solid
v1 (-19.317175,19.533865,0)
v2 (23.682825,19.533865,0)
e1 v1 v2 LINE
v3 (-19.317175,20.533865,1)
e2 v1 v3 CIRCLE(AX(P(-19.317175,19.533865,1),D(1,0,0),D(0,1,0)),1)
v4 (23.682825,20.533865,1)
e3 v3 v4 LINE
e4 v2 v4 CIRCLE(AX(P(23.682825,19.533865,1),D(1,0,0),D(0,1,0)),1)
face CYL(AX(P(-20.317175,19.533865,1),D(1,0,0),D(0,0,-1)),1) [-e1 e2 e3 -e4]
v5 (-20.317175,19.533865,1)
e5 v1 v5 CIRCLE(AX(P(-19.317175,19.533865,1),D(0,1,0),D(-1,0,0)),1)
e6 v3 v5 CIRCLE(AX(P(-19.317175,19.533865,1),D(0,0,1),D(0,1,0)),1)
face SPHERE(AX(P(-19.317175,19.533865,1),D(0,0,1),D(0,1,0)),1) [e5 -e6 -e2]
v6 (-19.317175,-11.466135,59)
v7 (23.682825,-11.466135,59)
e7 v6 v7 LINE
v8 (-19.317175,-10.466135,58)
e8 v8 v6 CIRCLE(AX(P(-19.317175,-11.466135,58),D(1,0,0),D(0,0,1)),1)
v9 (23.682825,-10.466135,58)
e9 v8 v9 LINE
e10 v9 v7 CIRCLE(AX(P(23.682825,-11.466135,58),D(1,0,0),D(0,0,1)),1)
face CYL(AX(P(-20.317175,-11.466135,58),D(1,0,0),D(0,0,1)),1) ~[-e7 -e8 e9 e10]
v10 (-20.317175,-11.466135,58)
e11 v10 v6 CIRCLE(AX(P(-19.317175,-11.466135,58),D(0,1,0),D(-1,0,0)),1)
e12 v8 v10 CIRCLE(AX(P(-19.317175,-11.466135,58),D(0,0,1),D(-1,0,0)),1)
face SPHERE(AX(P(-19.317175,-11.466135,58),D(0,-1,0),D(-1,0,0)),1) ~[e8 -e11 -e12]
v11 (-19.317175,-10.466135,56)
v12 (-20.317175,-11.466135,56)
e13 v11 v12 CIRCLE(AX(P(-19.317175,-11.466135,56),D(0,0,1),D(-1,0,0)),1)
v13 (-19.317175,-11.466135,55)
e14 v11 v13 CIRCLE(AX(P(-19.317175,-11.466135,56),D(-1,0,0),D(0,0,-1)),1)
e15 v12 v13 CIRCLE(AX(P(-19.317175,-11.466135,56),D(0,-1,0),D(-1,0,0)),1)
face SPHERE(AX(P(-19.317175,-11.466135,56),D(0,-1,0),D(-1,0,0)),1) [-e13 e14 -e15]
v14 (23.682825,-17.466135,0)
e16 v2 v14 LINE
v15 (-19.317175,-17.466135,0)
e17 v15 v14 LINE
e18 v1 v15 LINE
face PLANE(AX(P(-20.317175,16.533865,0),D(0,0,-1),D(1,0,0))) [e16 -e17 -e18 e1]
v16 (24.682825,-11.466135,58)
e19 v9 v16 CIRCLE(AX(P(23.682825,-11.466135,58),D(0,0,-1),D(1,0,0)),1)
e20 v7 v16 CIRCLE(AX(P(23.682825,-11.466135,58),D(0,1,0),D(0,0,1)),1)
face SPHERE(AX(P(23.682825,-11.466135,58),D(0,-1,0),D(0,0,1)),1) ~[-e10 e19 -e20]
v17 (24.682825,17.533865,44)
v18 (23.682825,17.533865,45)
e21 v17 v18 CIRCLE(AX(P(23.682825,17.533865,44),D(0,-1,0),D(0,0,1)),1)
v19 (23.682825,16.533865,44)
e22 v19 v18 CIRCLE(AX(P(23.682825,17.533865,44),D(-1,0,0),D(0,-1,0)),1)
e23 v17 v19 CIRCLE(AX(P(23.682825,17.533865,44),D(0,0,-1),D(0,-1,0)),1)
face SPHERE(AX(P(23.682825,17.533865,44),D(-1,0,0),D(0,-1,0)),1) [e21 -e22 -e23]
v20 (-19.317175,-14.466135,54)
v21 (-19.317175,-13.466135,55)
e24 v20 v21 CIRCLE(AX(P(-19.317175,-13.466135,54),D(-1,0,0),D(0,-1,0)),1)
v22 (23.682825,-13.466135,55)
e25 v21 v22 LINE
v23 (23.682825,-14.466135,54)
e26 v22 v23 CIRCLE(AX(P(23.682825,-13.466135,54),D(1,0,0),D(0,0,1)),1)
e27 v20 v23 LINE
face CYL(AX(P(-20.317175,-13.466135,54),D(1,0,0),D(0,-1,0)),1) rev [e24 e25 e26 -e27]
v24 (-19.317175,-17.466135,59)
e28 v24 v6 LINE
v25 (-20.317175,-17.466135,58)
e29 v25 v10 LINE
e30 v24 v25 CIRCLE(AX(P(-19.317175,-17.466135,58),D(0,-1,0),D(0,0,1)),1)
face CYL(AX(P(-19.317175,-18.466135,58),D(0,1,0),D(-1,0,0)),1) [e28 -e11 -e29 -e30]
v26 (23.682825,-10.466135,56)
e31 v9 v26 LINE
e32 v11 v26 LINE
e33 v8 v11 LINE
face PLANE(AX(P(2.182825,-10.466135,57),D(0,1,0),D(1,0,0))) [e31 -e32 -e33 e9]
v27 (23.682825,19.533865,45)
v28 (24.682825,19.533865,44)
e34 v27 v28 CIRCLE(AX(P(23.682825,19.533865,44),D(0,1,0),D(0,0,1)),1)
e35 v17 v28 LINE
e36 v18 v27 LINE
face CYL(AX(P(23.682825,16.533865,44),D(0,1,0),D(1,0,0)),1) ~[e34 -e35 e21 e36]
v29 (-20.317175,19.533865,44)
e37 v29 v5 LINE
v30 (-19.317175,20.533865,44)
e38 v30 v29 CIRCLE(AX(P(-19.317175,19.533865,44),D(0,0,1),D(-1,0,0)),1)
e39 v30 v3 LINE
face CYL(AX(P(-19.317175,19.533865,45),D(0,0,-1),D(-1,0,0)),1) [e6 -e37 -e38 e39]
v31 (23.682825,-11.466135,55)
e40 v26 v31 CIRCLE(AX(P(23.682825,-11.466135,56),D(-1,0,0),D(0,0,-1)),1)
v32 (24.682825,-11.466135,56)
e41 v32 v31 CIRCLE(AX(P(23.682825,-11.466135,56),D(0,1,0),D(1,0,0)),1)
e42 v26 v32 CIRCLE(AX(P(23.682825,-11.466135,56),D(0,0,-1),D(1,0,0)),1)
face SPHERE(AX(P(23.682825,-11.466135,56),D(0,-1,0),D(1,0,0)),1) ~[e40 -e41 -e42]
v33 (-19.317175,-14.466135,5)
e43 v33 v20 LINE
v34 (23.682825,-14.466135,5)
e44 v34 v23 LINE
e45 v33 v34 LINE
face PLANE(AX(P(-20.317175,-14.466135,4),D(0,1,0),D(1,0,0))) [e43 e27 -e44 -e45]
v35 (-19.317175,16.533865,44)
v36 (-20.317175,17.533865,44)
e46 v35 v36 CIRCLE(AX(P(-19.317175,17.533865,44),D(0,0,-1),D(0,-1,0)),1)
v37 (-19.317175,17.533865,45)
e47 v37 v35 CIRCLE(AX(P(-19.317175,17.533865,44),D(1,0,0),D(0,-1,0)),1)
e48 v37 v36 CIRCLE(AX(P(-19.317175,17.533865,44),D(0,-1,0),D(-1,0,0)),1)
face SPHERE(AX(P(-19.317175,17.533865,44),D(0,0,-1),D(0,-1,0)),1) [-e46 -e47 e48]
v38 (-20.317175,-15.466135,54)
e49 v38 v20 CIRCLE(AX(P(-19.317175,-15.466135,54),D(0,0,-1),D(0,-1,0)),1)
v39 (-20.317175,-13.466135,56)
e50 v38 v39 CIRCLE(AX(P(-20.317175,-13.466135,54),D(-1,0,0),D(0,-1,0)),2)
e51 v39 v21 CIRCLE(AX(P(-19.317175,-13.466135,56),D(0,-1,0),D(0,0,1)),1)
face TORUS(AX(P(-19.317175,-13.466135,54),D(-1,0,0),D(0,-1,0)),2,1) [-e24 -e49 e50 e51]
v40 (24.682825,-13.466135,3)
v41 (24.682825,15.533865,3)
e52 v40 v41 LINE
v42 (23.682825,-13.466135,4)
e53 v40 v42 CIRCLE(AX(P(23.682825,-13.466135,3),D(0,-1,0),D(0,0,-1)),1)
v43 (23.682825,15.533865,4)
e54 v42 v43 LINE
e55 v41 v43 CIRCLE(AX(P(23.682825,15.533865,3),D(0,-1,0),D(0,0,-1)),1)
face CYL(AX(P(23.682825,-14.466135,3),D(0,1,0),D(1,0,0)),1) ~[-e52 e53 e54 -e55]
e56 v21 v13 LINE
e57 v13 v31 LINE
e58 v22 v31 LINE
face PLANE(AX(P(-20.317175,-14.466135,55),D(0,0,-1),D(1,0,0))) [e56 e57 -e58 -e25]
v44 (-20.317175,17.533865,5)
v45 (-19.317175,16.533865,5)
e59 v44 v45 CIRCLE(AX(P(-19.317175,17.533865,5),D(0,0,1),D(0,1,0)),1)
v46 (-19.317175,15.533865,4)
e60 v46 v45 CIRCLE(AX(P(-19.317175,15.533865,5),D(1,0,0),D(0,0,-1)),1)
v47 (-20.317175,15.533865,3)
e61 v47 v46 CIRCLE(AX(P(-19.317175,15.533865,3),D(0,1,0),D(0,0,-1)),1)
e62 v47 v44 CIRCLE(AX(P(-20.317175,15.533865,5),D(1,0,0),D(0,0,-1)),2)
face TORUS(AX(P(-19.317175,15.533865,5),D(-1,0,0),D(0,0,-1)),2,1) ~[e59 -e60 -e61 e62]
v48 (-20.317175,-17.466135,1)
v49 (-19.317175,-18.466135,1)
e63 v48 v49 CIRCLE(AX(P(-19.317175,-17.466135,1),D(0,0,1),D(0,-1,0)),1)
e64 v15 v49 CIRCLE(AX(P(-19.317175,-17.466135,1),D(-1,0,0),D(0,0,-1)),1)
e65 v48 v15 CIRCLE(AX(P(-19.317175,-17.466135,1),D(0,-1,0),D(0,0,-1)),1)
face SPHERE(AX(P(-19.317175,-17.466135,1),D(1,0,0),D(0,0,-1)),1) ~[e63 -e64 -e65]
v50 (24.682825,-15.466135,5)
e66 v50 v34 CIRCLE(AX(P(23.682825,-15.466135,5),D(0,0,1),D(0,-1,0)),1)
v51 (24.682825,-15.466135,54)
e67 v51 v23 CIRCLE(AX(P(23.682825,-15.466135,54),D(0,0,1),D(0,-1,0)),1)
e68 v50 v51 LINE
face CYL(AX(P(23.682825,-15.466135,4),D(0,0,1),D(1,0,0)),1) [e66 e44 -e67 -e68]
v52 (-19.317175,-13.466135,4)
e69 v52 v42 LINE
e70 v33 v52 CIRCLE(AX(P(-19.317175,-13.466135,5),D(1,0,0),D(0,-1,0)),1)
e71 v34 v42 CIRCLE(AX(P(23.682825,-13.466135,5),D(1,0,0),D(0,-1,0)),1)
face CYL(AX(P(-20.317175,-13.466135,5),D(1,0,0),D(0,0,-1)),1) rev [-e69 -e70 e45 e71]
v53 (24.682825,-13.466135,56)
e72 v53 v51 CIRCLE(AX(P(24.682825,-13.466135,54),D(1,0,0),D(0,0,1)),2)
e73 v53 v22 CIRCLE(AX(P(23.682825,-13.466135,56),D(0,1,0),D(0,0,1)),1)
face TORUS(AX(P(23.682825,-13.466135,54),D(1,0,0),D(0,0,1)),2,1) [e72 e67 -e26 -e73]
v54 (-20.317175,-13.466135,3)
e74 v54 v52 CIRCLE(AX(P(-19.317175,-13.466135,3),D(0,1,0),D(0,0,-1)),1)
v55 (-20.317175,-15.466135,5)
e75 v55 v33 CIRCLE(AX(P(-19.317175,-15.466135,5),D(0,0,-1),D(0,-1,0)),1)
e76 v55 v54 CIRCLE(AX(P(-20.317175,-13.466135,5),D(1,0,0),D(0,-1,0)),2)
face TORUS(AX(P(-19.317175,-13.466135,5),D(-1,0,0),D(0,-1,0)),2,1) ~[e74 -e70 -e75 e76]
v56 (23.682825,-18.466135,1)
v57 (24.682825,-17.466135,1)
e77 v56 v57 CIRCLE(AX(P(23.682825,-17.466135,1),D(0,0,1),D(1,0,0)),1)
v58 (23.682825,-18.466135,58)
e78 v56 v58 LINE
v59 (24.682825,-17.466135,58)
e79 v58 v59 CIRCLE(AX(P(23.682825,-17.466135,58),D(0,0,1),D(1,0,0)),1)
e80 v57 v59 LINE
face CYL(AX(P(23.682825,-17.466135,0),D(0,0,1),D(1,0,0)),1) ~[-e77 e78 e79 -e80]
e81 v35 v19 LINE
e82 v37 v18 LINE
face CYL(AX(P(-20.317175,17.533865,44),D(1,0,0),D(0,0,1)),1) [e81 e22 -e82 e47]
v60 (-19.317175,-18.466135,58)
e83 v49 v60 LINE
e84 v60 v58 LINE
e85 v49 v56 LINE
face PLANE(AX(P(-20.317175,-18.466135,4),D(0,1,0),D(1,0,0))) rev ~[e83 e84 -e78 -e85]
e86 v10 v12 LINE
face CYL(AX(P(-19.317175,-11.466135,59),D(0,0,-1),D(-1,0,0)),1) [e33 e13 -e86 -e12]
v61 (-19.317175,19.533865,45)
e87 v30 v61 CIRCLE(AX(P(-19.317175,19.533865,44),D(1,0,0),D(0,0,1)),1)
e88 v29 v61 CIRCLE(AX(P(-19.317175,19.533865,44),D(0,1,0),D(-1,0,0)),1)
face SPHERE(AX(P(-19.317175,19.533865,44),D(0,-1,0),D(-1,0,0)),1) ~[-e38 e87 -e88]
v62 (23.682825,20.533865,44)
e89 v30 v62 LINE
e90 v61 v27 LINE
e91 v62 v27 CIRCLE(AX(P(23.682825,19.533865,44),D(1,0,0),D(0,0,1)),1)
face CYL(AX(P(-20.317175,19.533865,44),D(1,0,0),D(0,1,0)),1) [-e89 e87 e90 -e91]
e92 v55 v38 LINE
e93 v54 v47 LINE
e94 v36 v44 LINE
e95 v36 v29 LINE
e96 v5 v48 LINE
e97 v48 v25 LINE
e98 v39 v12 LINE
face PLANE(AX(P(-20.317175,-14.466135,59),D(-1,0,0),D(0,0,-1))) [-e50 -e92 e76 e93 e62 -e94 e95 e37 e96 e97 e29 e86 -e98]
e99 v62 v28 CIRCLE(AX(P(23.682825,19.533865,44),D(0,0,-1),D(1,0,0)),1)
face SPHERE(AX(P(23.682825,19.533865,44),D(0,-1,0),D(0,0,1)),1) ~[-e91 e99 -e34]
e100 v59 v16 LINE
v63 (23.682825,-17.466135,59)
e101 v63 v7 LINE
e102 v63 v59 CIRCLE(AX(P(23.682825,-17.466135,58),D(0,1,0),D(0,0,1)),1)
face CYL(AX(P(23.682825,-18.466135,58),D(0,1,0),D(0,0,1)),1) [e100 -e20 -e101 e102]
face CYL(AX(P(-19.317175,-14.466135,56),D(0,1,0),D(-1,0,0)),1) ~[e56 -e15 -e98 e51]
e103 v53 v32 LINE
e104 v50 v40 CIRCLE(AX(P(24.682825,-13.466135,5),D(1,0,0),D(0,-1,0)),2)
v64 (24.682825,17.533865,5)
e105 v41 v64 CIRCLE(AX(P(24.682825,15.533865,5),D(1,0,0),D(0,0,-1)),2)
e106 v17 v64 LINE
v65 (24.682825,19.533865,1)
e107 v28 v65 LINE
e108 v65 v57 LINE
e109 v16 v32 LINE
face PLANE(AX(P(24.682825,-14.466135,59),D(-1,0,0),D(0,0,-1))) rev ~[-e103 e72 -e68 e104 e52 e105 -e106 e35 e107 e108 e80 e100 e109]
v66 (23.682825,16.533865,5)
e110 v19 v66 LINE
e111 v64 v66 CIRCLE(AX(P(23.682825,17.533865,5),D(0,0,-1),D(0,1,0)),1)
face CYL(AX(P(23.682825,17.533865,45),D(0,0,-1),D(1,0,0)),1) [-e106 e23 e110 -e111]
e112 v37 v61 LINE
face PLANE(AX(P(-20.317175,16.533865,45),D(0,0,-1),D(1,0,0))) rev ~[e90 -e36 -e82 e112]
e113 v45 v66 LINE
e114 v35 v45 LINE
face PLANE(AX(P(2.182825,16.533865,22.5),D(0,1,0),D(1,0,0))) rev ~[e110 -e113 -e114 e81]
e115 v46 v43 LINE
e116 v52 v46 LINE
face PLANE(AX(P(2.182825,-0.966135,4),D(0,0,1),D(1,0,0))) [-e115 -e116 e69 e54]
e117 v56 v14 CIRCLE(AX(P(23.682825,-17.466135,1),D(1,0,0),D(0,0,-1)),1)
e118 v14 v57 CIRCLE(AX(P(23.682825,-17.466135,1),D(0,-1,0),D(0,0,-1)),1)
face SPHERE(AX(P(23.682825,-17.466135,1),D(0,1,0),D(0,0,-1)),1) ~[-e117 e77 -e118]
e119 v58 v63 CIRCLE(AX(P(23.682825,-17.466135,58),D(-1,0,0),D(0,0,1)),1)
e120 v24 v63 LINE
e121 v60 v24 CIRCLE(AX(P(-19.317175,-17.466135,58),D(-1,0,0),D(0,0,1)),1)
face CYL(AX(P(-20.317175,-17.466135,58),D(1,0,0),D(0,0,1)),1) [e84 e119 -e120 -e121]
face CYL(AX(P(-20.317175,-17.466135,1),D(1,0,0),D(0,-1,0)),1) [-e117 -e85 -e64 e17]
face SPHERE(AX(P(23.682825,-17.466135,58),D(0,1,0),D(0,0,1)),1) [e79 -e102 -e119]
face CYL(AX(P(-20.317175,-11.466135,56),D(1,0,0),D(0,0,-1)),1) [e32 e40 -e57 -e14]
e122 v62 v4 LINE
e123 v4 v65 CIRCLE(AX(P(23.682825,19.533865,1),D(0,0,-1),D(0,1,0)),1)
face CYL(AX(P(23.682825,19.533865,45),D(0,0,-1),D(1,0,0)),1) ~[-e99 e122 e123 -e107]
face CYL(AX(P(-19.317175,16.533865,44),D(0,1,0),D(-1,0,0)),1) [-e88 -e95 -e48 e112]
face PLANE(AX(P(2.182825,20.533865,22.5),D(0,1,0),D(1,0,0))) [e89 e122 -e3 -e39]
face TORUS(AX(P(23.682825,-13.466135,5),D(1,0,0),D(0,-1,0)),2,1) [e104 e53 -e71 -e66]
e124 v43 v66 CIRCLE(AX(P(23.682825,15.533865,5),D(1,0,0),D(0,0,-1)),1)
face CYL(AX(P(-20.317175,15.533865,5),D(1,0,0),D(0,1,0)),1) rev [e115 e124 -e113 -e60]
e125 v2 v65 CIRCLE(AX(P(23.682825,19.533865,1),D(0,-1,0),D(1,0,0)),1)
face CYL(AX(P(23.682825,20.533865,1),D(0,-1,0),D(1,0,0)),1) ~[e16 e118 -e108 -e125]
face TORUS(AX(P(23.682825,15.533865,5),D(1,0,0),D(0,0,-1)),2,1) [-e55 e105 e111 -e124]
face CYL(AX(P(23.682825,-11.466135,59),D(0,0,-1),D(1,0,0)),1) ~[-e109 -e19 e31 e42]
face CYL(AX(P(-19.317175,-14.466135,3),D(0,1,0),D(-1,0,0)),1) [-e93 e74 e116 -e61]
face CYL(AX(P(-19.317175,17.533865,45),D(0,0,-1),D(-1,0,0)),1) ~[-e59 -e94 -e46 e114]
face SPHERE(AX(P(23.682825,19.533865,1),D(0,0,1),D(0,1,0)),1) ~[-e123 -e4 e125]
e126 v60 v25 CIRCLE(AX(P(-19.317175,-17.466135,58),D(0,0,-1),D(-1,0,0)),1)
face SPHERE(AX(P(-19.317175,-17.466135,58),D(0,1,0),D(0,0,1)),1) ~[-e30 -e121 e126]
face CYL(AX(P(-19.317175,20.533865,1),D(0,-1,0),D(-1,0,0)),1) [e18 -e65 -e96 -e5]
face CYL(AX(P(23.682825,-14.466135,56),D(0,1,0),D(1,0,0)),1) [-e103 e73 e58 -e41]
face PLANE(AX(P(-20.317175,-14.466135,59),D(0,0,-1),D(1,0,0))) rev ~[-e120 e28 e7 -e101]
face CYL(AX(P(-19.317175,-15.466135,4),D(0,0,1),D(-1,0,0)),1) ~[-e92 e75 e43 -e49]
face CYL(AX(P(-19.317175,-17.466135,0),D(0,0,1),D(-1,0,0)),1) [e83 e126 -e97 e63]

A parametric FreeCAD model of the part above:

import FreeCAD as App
import Part
import Sketcher

V = App.Vector

doc = App.newDocument("Part")
params = doc.addObject("Spreadsheet::Sheet", "Params")
for row, (alias, value) in enumerate([
    ("sketch1_width", "45 mm"),
    ("sketch1_height", "35 mm"),
    ("pad1_length", "4 mm"),
    ("sketch2_width", "45 mm"),
    ("pad2_length", "4 mm"),
    ("sketch3_width", "45 mm"),
    ("sketch3_height", "4 mm"),
    ("pad3_length", "55 mm"),
    ("sketch4_width", "45 mm"),
    ("sketch4_height", "4 mm"),
    ("pad4_length", "4 mm"),
    ("fillet_radius", "1 mm"),
], start=1):
    params.set(f"A{row}", alias)
    params.set(f"B{row}", "=" + value)
    params.setAlias(f"B{row}", alias)

body = doc.addObject("PartDesign::Body", "Body")

sketch1 = body.newObject("Sketcher::SketchObject", "Sketch")
sketch1.AttachmentSupport = (doc.getObject("XY_Plane"), [""])
sketch1.MapMode = "FlatFace"
sketch1.addGeometry(Part.LineSegment(V(-20.317175, 16.533865, 0), V(-20.317175, -18.466135, 0)), False)
sketch1.addGeometry(Part.LineSegment(V(-20.317175, -18.466135, 0), V(24.682825, -18.466135, 0)), False)
sketch1.addGeometry(Part.LineSegment(V(24.682825, -18.466135, 0), V(24.682825, 16.533865, 0)), False)
sketch1.addGeometry(Part.LineSegment(V(24.682825, 16.533865, 0), V(-20.317175, 16.533865, 0)), False)
sketch1.addConstraint(Sketcher.Constraint("Coincident", 0, 2, 1, 1))
sketch1.addConstraint(Sketcher.Constraint("Coincident", 1, 2, 2, 1))
sketch1.addConstraint(Sketcher.Constraint("Coincident", 2, 2, 3, 1))
sketch1.addConstraint(Sketcher.Constraint("Coincident", 3, 2, 0, 1))
sketch1.addConstraint(Sketcher.Constraint("Vertical", 0))
sketch1.addConstraint(Sketcher.Constraint("Horizontal", 1))
sketch1.addConstraint(Sketcher.Constraint("Vertical", 2))
sketch1.addConstraint(Sketcher.Constraint("Horizontal", 3))
sketch1.addConstraint(Sketcher.Constraint("DistanceX", 1, 1, 1, 2, 45.0))
sketch1.addConstraint(Sketcher.Constraint("DistanceY", 0, 2, 0, 1, 35.0))
sketch1.addConstraint(Sketcher.Constraint("DistanceX", 0, 2, -1, 1, 20.317175))
sketch1.addConstraint(Sketcher.Constraint("DistanceY", 0, 2, -1, 1, 18.466135))
sketch1.setExpression("Constraints[8]", "Params.sketch1_width")
sketch1.setExpression("Constraints[9]", "Params.sketch1_height")
pad1 = body.newObject("PartDesign::Pad", "Pad")
pad1.Profile = sketch1
pad1.setExpression("Length", "Params.pad1_length")

sketch2 = body.newObject("Sketcher::SketchObject", "Sketch001")
sketch2.AttachmentSupport = (doc.getObject("XZ_Plane"), [""])
sketch2.MapMode = "FlatFace"
sketch2.AttachmentOffset = App.Placement(V(0, 0, -16.533865), App.Rotation())
sketch2.addGeometry(Part.LineSegment(V(-20.317175, 0, 0), V(-20.317175, 45, 0)), False)
sketch2.addGeometry(Part.LineSegment(V(-20.317175, 45, 0), V(24.682825, 45, 0)), False)
sketch2.addGeometry(Part.LineSegment(V(24.682825, 45, 0), V(24.682825, 0, 0)), False)
sketch2.addGeometry(Part.LineSegment(V(24.682825, 0, 0), V(-20.317175, 0, 0)), False)
sketch2.addConstraint(Sketcher.Constraint("Coincident", 0, 2, 1, 1))
sketch2.addConstraint(Sketcher.Constraint("Coincident", 1, 2, 2, 1))
sketch2.addConstraint(Sketcher.Constraint("Coincident", 2, 2, 3, 1))
sketch2.addConstraint(Sketcher.Constraint("Coincident", 3, 2, 0, 1))
sketch2.addConstraint(Sketcher.Constraint("Vertical", 0))
sketch2.addConstraint(Sketcher.Constraint("Horizontal", 1))
sketch2.addConstraint(Sketcher.Constraint("Vertical", 2))
sketch2.addConstraint(Sketcher.Constraint("Horizontal", 3))
sketch2.addConstraint(Sketcher.Constraint("PointOnObject", 2, 2, -1))
sketch2.addConstraint(Sketcher.Constraint("Equal", 3, 0))
sketch2.addConstraint(Sketcher.Constraint("DistanceX", 1, 1, 1, 2, 45.0))
sketch2.addConstraint(Sketcher.Constraint("DistanceX", 0, 2, -1, 1, 20.317175))
sketch2.setExpression("Constraints[10]", "Params.sketch2_width")
pad2 = body.newObject("PartDesign::Pad", "Pad001")
pad2.Profile = sketch2
pad2.setExpression("Length", "Params.pad2_length")
pad2.Reversed = True

sketch3 = body.newObject("Sketcher::SketchObject", "Sketch002")
sketch3.AttachmentSupport = (doc.getObject("XY_Plane"), [""])
sketch3.MapMode = "FlatFace"
sketch3.AttachmentOffset = App.Placement(V(0, 0, 4), App.Rotation())
sketch3.addGeometry(Part.LineSegment(V(-20.317175, -14.466135, 0), V(-20.317175, -18.466135, 0)), False)
sketch3.addGeometry(Part.LineSegment(V(-20.317175, -18.466135, 0), V(24.682825, -18.466135, 0)), False)
sketch3.addGeometry(Part.LineSegment(V(24.682825, -18.466135, 0), V(24.682825, -14.466135, 0)), False)
sketch3.addGeometry(Part.LineSegment(V(24.682825, -14.466135, 0), V(-20.317175, -14.466135, 0)), False)
sketch3.addConstraint(Sketcher.Constraint("Coincident", 0, 2, 1, 1))
sketch3.addConstraint(Sketcher.Constraint("Coincident", 1, 2, 2, 1))
sketch3.addConstraint(Sketcher.Constraint("Coincident", 2, 2, 3, 1))
sketch3.addConstraint(Sketcher.Constraint("Coincident", 3, 2, 0, 1))
sketch3.addConstraint(Sketcher.Constraint("Vertical", 0))
sketch3.addConstraint(Sketcher.Constraint("Horizontal", 1))
sketch3.addConstraint(Sketcher.Constraint("Vertical", 2))
sketch3.addConstraint(Sketcher.Constraint("Horizontal", 3))
sketch3.addConstraint(Sketcher.Constraint("DistanceX", 1, 1, 1, 2, 45.0))
sketch3.addConstraint(Sketcher.Constraint("DistanceY", 0, 2, 0, 1, 4.0))
sketch3.addConstraint(Sketcher.Constraint("DistanceX", 0, 2, -1, 1, 20.317175))
sketch3.addConstraint(Sketcher.Constraint("DistanceY", 0, 2, -1, 1, 18.466135))
sketch3.setExpression("Constraints[8]", "Params.sketch3_width")
sketch3.setExpression("Constraints[9]", "Params.sketch3_height")
pad3 = body.newObject("PartDesign::Pad", "Pad002")
pad3.Profile = sketch3
pad3.setExpression("Length", "Params.pad3_length")

sketch4 = body.newObject("Sketcher::SketchObject", "Sketch003")
sketch4.AttachmentSupport = (doc.getObject("XZ_Plane"), [""])
sketch4.MapMode = "FlatFace"
sketch4.AttachmentOffset = App.Placement(V(0, 0, 14.466135), App.Rotation())
sketch4.addGeometry(Part.LineSegment(V(-20.317175, 55, 0), V(-20.317175, 59, 0)), False)
sketch4.addGeometry(Part.LineSegment(V(-20.317175, 59, 0), V(24.682825, 59, 0)), False)
sketch4.addGeometry(Part.LineSegment(V(24.682825, 59, 0), V(24.682825, 55, 0)), False)
sketch4.addGeometry(Part.LineSegment(V(24.682825, 55, 0), V(-20.317175, 55, 0)), False)
sketch4.addConstraint(Sketcher.Constraint("Coincident", 0, 2, 1, 1))
sketch4.addConstraint(Sketcher.Constraint("Coincident", 1, 2, 2, 1))
sketch4.addConstraint(Sketcher.Constraint("Coincident", 2, 2, 3, 1))
sketch4.addConstraint(Sketcher.Constraint("Coincident", 3, 2, 0, 1))
sketch4.addConstraint(Sketcher.Constraint("Vertical", 0))
sketch4.addConstraint(Sketcher.Constraint("Horizontal", 1))
sketch4.addConstraint(Sketcher.Constraint("Vertical", 2))
sketch4.addConstraint(Sketcher.Constraint("Horizontal", 3))
sketch4.addConstraint(Sketcher.Constraint("DistanceX", 1, 1, 1, 2, 45.0))
sketch4.addConstraint(Sketcher.Constraint("DistanceY", 0, 1, 0, 2, 4.0))
sketch4.addConstraint(Sketcher.Constraint("DistanceY", -1, 1, 0, 2, 59.0))
sketch4.addConstraint(Sketcher.Constraint("DistanceX", 0, 2, -1, 1, 20.317175))
sketch4.setExpression("Constraints[8]", "Params.sketch4_width")
sketch4.setExpression("Constraints[9]", "Params.sketch4_height")
pad4 = body.newObject("PartDesign::Pad", "Pad003")
pad4.Profile = sketch4
pad4.setExpression("Length", "Params.pad4_length")
pad4.Reversed = True
doc.recompute()

fillet = body.newObject("PartDesign::Fillet", "Fillet")
fillet.Base = (pad4, ["Edge1"])
fillet.UseAllEdges = True
fillet.setExpression("Radius", "Params.fillet_radius")

doc.recompute()
